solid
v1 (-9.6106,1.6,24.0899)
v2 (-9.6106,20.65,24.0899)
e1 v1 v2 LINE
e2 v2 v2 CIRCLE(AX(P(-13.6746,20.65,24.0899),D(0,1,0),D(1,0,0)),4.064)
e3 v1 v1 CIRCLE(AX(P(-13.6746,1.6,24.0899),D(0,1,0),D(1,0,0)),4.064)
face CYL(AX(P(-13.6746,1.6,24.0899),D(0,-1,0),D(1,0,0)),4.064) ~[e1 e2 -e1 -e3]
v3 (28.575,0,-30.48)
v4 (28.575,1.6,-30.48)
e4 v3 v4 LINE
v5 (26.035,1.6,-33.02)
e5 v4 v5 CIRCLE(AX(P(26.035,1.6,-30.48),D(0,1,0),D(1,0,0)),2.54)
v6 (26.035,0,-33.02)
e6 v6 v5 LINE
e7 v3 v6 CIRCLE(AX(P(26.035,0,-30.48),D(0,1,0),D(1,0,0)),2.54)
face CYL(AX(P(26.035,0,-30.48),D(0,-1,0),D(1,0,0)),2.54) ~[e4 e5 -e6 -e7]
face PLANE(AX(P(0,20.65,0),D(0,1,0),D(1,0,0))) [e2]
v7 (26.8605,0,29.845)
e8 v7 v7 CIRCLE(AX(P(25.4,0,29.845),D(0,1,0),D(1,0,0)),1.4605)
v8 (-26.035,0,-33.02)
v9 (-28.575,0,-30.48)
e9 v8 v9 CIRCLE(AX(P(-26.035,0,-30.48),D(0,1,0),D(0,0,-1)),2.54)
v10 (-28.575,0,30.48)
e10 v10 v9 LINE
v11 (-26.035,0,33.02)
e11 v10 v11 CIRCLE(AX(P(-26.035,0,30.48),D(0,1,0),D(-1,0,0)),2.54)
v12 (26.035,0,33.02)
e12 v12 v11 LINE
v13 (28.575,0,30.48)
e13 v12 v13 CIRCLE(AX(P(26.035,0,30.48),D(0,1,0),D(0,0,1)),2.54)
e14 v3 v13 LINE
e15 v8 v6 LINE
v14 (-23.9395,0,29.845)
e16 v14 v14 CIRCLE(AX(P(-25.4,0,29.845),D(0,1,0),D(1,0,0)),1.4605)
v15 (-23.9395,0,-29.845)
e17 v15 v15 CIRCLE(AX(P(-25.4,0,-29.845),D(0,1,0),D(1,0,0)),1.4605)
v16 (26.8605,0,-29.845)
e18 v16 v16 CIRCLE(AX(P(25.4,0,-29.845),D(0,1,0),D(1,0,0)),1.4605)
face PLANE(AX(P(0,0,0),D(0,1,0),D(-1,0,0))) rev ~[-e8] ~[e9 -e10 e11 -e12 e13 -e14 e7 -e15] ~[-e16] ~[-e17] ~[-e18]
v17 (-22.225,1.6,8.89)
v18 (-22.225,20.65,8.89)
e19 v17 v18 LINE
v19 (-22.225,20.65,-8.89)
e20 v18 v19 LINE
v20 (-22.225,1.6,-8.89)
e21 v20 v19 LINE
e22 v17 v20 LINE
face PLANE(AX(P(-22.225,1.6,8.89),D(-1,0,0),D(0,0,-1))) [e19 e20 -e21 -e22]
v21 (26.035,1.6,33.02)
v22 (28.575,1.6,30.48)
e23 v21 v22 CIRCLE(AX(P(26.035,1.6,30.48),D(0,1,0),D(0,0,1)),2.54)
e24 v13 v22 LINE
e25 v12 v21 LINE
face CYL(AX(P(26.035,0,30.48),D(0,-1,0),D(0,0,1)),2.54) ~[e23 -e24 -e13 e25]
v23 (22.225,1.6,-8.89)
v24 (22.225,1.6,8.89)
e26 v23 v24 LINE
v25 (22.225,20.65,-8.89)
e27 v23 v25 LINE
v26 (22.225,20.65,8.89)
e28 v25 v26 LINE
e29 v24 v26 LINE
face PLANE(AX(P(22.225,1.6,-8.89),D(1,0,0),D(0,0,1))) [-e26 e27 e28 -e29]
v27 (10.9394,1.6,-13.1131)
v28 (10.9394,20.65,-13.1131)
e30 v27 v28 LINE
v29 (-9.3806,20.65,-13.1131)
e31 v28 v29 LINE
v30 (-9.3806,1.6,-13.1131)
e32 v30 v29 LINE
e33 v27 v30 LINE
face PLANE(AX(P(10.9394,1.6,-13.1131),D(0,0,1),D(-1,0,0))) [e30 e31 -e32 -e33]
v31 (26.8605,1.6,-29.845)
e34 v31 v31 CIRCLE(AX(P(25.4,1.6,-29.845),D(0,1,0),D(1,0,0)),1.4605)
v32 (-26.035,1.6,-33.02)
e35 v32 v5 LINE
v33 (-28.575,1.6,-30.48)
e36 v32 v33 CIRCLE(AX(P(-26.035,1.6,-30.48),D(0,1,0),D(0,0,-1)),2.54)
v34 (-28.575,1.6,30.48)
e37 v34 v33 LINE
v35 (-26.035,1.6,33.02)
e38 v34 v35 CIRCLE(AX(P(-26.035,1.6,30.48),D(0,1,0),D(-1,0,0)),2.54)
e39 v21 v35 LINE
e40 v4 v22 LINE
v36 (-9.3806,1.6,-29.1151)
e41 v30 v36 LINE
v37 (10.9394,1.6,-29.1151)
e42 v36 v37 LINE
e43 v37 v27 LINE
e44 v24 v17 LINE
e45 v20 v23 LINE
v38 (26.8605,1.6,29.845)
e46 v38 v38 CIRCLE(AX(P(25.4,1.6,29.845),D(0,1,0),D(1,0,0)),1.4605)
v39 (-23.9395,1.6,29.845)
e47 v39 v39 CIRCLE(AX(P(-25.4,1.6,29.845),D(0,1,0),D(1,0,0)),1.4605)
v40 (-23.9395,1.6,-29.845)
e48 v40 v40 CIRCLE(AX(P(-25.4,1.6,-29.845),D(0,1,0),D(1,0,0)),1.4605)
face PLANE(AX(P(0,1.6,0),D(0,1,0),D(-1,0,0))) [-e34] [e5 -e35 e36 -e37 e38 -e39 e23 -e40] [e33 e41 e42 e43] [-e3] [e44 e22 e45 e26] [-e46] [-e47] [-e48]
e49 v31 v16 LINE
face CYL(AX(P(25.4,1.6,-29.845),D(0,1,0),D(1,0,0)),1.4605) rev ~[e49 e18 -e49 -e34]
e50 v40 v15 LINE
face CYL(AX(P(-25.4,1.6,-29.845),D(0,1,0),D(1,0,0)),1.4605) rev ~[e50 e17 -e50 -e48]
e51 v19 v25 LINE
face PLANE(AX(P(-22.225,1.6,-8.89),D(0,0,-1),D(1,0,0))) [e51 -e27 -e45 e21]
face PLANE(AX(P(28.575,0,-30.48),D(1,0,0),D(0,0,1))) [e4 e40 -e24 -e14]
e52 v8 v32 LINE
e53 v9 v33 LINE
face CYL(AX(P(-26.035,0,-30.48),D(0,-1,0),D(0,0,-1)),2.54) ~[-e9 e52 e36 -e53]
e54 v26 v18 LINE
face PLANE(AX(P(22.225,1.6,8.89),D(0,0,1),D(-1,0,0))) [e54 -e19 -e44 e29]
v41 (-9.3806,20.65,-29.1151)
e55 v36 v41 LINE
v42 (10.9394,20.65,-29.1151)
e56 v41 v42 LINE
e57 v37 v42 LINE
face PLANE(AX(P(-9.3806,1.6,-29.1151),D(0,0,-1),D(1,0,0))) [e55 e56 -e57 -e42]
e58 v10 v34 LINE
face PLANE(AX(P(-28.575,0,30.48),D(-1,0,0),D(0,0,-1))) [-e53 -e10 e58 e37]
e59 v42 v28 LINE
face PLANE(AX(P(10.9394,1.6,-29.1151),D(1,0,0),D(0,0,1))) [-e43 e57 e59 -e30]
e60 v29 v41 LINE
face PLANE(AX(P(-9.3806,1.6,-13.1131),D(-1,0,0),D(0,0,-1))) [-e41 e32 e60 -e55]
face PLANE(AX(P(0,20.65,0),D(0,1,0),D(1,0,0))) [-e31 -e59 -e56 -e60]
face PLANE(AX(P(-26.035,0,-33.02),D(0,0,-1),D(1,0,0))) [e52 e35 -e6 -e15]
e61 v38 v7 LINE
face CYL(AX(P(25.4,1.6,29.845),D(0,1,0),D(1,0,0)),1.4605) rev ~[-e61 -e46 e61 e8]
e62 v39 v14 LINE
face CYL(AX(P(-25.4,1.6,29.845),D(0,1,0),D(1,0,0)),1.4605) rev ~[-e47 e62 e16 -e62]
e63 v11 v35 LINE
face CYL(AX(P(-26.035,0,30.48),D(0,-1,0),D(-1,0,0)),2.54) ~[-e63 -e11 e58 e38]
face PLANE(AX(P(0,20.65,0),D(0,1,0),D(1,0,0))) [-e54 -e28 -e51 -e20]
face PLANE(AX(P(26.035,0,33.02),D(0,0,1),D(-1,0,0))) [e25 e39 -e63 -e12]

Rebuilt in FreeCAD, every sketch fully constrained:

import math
import FreeCAD as App
import Part
import Sketcher
Q = App.Units.Quantity

doc = App.newDocument("Part")
body = doc.addObject("PartDesign::Body", "Body")

# Sketch on XZ plane
sketch1 = body.newObject("Sketcher::SketchObject", "Sketch")
sketch1.AttachmentSupport = (doc.getObject("XZ_Plane"), [""])
sketch1.MapMode = "FlatFace"
sketch1.addGeometry(Part.LineSegment(App.Vector(-26, 33, 0), App.Vector(26, 33, 0)), False)
sketch1.addGeometry(Part.ArcOfCircle(Part.Circle(App.Vector(26, 30.5, 0), App.Vector(0, 0, 1), 2.5), math.radians(0), math.radians(90)), False)
sketch1.addGeometry(Part.LineSegment(App.Vector(28.6, 30.5, 0), App.Vector(28.6, -30.5, 0)), False)
sketch1.addGeometry(Part.ArcOfCircle(Part.Circle(App.Vector(26, -30.5, 0), App.Vector(0, 0, 1), 2.5), math.radians(-90), math.radians(0)), False)
sketch1.addGeometry(Part.LineSegment(App.Vector(26, -33, 0), App.Vector(-26, -33, 0)), False)
sketch1.addGeometry(Part.ArcOfCircle(Part.Circle(App.Vector(-26, -30.5, 0), App.Vector(0, 0, 1), 2.5), math.radians(180), math.radians(270)), False)
sketch1.addGeometry(Part.LineSegment(App.Vector(-28.6, -30.5, 0), App.Vector(-28.6, 30.5, 0)), False)
sketch1.addGeometry(Part.ArcOfCircle(Part.Circle(App.Vector(-26, 30.5, 0), App.Vector(0, 0, 1), 2.5), math.radians(90), math.radians(180)), False)
sketch1.addConstraint(Sketcher.Constraint("Tangent", 0, 2, 1, 2))
sketch1.addConstraint(Sketcher.Constraint("Tangent", 1, 1, 2, 1))
sketch1.addConstraint(Sketcher.Constraint("Tangent", 2, 2, 3, 2))
sketch1.addConstraint(Sketcher.Constraint("Tangent", 3, 1, 4, 1))
sketch1.addConstraint(Sketcher.Constraint("Tangent", 4, 2, 5, 2))
sketch1.addConstraint(Sketcher.Constraint("Tangent", 5, 1, 6, 1))
sketch1.addConstraint(Sketcher.Constraint("Tangent", 6, 2, 7, 2))
sketch1.addConstraint(Sketcher.Constraint("Tangent", 7, 1, 0, 1))
sketch1.addConstraint(Sketcher.Constraint("Horizontal", 0))
sketch1.addConstraint(Sketcher.Constraint("Vertical", 2))
sketch1.addConstraint(Sketcher.Constraint("Horizontal", 4))
sketch1.addConstraint(Sketcher.Constraint("Vertical", 6))
sketch1.addConstraint(Sketcher.Constraint("Equal", 1, 3))
sketch1.addConstraint(Sketcher.Constraint("Equal", 3, 5))
sketch1.addConstraint(Sketcher.Constraint("Equal", 5, 7))
sketch1.addConstraint(Sketcher.Constraint("Symmetric", 1, 3, 5, 3, -1, 1))
sketch1.addConstraint(Sketcher.Constraint("Radius", 1, Q("0.1 in")))
sketch1.addConstraint(Sketcher.Constraint("DistanceX", 5, 1, 2, 2, Q("2.25 in")))
sketch1.addConstraint(Sketcher.Constraint("DistanceY", 2, 2, 2, 1, Q("2.4 in")))
pad1 = body.newObject("PartDesign::Pad", "Pad")
pad1.Profile = sketch1
pad1.Length = Q("0.0629921 in")
pad1.Reversed = True

# Sketch on XZ plane
sketch2 = body.newObject("Sketcher::SketchObject", "Sketch001")
sketch2.AttachmentSupport = (doc.getObject("XZ_Plane"), [""])
sketch2.MapMode = "FlatFace"
sketch2.AttachmentOffset = App.Placement(App.Vector(0, 0, -0.0629921 * 25.4), App.Rotation())
sketch2.addGeometry(Part.Circle(App.Vector(-25.4, -29.8, 0), App.Vector(0, 0, 1), 1.5), False)
sketch2.addGeometry(Part.Circle(App.Vector(-25.4, 29.8, 0), App.Vector(0, 0, 1), 1.5), False)
sketch2.addGeometry(Part.Circle(App.Vector(25.4, 29.8, 0), App.Vector(0, 0, 1), 1.5), False)
sketch2.addGeometry(Part.Circle(App.Vector(25.4, -29.8, 0), App.Vector(0, 0, 1), 1.5), False)
sketch2.addConstraint(Sketcher.Constraint("Equal", 0, 1))
sketch2.addConstraint(Sketcher.Constraint("Equal", 1, 2))
sketch2.addConstraint(Sketcher.Constraint("Equal", 2, 3))
sketch2.addConstraint(Sketcher.Constraint("Symmetric", 0, 3, 2, 3, -1, 1))
sketch2.addConstraint(Sketcher.Constraint("Symmetric", 1, 3, 3, 3, -1, 1))
sketch2.addConstraint(Sketcher.Constraint("Symmetric", 1, 3, 2, 3, -2))
sketch2.addConstraint(Sketcher.Constraint("Diameter", 0, Q("0.115 in")))
sketch2.addConstraint(Sketcher.Constraint("DistanceX", 1, 3, 2, 3, Q("2 in")))
sketch2.addConstraint(Sketcher.Constraint("DistanceY", 0, 3, 1, 3, Q("2.35 in")))
pocket1 = body.newObject("PartDesign::Pocket", "Pocket")
pocket1.Profile = sketch2
pocket1.Type = "ThroughAll"
pocket1.Reversed = True

# Sketch on XZ plane
sketch3 = body.newObject("Sketcher::SketchObject", "Sketch002")
sketch3.AttachmentSupport = (doc.getObject("XZ_Plane"), [""])
sketch3.MapMode = "FlatFace"
sketch3.AttachmentOffset = App.Placement(App.Vector(0, 0, -0.0629921 * 25.4), App.Rotation())
sketch3.addGeometry(Part.LineSegment(App.Vector(22.2, -8.9, 0), App.Vector(-22.2, -8.9, 0)), False)
sketch3.addGeometry(Part.LineSegment(App.Vector(-22.2, -8.9, 0), App.Vector(-22.2, 8.9, 0)), False)
sketch3.addGeometry(Part.LineSegment(App.Vector(-22.2, 8.9, 0), App.Vector(22.2, 8.9, 0)), False)
sketch3.addGeometry(Part.LineSegment(App.Vector(22.2, 8.9, 0), App.Vector(22.2, -8.9, 0)), False)
sketch3.addGeometry(Part.LineSegment(App.Vector(-9.4, -13.1, 0), App.Vector(10.9, -13.1, 0)), False)
sketch3.addGeometry(Part.LineSegment(App.Vector(10.9, -13.1, 0), App.Vector(10.9, -29.1, 0)), False)
sketch3.addGeometry(Part.LineSegment(App.Vector(10.9, -29.1, 0), App.Vector(-9.4, -29.1, 0)), False)
sketch3.addGeometry(Part.LineSegment(App.Vector(-9.4, -29.1, 0), App.Vector(-9.4, -13.1, 0)), False)
sketch3.addGeometry(Part.Circle(App.Vector(-13.7, 24.1, 0), App.Vector(0, 0, 1), 4.1), False)
sketch3.addConstraint(Sketcher.Constraint("Coincident", 0, 2, 1, 1))
sketch3.addConstraint(Sketcher.Constraint("Coincident", 1, 2, 2, 1))
sketch3.addConstraint(Sketcher.Constraint("Coincident", 2, 2, 3, 1))
sketch3.addConstraint(Sketcher.Constraint("Coincident", 3, 2, 0, 1))
sketch3.addConstraint(Sketcher.Constraint("Coincident", 4, 2, 5, 1))
sketch3.addConstraint(Sketcher.Constraint("Coincident", 5, 2, 6, 1))
sketch3.addConstraint(Sketcher.Constraint("Coincident", 6, 2, 7, 1))
sketch3.addConstraint(Sketcher.Constraint("Coincident", 7, 2, 4, 1))
sketch3.addConstraint(Sketcher.Constraint("Horizontal", 0))
sketch3.addConstraint(Sketcher.Constraint("Vertical", 1))
sketch3.addConstraint(Sketcher.Constraint("Horizontal", 2))
sketch3.addConstraint(Sketcher.Constraint("Vertical", 3))
sketch3.addConstraint(Sketcher.Constraint("Horizontal", 4))
sketch3.addConstraint(Sketcher.Constraint("Vertical", 5))
sketch3.addConstraint(Sketcher.Constraint("Horizontal", 6))
sketch3.addConstraint(Sketcher.Constraint("Vertical", 7))
sketch3.addConstraint(Sketcher.Constraint("Symmetric", 0, 2, 2, 2, -1, 1))
sketch3.addConstraint(Sketcher.Constraint("Diameter", 8, Q("0.32 in")))
sketch3.addConstraint(Sketcher.Constraint("DistanceX", 4, 1, 4, 2, Q("0.8 in")))
sketch3.addConstraint(Sketcher.Constraint("DistanceY", 1, 1, 1, 2, Q("0.7 in")))
sketch3.addConstraint(Sketcher.Constraint("DistanceX", 0, 2, 0, 1, Q("1.75 in")))
sketch3.addConstraint(Sketcher.Constraint("DistanceY", 5, 2, 5, 1, Q("0.63 in")))
sketch3.addConstraint(Sketcher.Constraint("DistanceX", 8, 3, -1, 1, 13.6746))
sketch3.addConstraint(Sketcher.Constraint("DistanceY", -1, 1, 8, 3, 24.09))
sketch3.addConstraint(Sketcher.Constraint("DistanceX", -1, 1, 4, 2, 10.9394))
sketch3.addConstraint(Sketcher.Constraint("DistanceY", 4, 2, -1, 1, 13.113))
pad2 = body.newObject("PartDesign::Pad", "Pad001")
pad2.Profile = sketch3
pad2.Length = Q("0.75 in")
pad2.Reversed = True

doc.recompute()
